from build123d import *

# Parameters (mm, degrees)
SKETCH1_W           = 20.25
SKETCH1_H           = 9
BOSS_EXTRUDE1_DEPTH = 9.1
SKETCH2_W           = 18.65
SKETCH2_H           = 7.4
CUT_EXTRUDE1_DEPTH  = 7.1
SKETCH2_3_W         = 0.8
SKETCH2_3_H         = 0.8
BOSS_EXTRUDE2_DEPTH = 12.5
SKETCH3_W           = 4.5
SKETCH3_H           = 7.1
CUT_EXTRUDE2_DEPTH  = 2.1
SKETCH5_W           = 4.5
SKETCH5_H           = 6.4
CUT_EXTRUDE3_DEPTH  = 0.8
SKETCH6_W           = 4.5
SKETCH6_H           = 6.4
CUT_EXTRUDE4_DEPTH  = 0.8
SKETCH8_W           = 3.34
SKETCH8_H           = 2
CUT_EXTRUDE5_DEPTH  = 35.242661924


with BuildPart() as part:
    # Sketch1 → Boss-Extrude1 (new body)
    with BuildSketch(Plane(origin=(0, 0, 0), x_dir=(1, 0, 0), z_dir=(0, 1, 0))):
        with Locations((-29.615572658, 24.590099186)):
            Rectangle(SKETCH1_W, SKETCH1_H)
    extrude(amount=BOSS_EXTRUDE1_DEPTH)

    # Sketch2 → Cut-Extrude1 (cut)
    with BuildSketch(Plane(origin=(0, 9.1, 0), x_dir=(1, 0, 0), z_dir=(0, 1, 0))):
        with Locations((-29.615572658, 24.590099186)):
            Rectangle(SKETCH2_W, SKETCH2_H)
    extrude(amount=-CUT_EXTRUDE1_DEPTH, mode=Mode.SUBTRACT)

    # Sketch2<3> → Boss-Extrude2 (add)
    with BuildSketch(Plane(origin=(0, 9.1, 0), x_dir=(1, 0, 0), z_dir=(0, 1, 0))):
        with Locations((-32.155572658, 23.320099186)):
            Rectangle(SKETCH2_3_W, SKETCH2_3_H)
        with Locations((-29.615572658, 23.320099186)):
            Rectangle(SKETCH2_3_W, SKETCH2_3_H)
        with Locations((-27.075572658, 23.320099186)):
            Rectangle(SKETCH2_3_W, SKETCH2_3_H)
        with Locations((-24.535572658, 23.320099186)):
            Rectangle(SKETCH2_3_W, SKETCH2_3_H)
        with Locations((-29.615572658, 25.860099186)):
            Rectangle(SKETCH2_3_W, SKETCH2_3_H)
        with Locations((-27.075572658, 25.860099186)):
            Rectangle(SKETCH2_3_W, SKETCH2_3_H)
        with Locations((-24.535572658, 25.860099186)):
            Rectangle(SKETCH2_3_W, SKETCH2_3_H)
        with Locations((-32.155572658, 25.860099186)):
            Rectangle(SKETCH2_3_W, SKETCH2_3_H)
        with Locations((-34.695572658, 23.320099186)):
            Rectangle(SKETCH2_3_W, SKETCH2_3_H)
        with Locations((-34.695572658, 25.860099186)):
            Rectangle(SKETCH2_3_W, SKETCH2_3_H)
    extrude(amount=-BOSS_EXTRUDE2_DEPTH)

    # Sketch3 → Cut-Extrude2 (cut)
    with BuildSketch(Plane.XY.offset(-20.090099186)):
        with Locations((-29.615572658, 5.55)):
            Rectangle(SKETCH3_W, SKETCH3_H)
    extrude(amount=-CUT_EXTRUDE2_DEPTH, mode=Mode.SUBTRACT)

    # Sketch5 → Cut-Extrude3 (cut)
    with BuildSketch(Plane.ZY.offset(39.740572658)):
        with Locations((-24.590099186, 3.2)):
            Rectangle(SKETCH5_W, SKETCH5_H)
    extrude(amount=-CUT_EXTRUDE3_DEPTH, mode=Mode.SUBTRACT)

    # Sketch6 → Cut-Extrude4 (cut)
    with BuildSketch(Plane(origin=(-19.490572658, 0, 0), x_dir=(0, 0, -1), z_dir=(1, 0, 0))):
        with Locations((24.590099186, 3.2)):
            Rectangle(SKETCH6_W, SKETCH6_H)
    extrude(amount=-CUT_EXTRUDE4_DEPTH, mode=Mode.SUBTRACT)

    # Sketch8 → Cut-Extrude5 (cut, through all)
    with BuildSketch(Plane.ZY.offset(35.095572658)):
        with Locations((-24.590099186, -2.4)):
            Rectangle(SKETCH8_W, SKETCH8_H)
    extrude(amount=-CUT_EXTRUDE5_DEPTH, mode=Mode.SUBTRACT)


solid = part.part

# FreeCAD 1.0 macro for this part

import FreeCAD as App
import Part
import Sketcher
Q = App.Units.Quantity

doc = App.newDocument("Part")
body = doc.addObject("PartDesign::Body", "Body")

sketch1 = body.newObject("Sketcher::SketchObject", "Sketch")
sketch1.AttachmentSupport = (doc.getObject("XZ_Plane"), [""])
sketch1.MapMode = "FlatFace"
sketch1.addGeometry(Part.LineSegment(App.Vector(-40, -29, 0), App.Vector(-40, -20, 0)), False)
sketch1.addGeometry(Part.LineSegment(App.Vector(-40, -20, 0), App.Vector(-19, -20, 0)), False)
sketch1.addGeometry(Part.LineSegment(App.Vector(-19, -20, 0), App.Vector(-19, -29, 0)), False)
sketch1.addGeometry(Part.LineSegment(App.Vector(-19, -29, 0), App.Vector(-40, -29, 0)), False)
sketch1.addConstraint(Sketcher.Constraint("Coincident", 0, 2, 1, 1))
sketch1.addConstraint(Sketcher.Constraint("Coincident", 1, 2, 2, 1))
sketch1.addConstraint(Sketcher.Constraint("Coincident", 2, 2, 3, 1))
sketch1.addConstraint(Sketcher.Constraint("Coincident", 3, 2, 0, 1))
sketch1.addConstraint(Sketcher.Constraint("Vertical", 0))
sketch1.addConstraint(Sketcher.Constraint("Horizontal", 1))
sketch1.addConstraint(Sketcher.Constraint("Vertical", 2))
sketch1.addConstraint(Sketcher.Constraint("Horizontal", 3))
sketch1.addConstraint(Sketcher.Constraint("DistanceY", 0, 1, 0, 2, Q("9 mm")))
sketch1.addConstraint(Sketcher.Constraint("DistanceX", 1, 1, 1, 2, Q("20.25 mm")))
sketch1.addConstraint(Sketcher.Constraint("DistanceY", 0, 2, -1, 1, Q("20.090099 mm")))
sketch1.addConstraint(Sketcher.Constraint("DistanceX", 0, 2, -1, 1, Q("39.740573 mm")))
pad1 = body.newObject("PartDesign::Pad", "Pad")
pad1.Profile = sketch1
pad1.Length = 9.1
pad1.Reversed = True

sketch2 = body.newObject("Sketcher::SketchObject", "Sketch001")
sketch2.AttachmentSupport = (doc.getObject("XZ_Plane"), [""])
sketch2.MapMode = "FlatFace"
sketch2.AttachmentOffset = App.Placement(App.Vector(0, 0, -9.1), App.Rotation())
sketch2.addGeometry(Part.LineSegment(App.Vector(-39, -28, 0), App.Vector(-39, -21, 0)), False)
sketch2.addGeometry(Part.LineSegment(App.Vector(-39, -21, 0), App.Vector(-20, -21, 0)), False)
sketch2.addGeometry(Part.LineSegment(App.Vector(-20, -21, 0), App.Vector(-20, -28, 0)), False)
sketch2.addGeometry(Part.LineSegment(App.Vector(-20, -28, 0), App.Vector(-39, -28, 0)), False)
sketch2.addConstraint(Sketcher.Constraint("Coincident", 0, 2, 1, 1))
sketch2.addConstraint(Sketcher.Constraint("Coincident", 1, 2, 2, 1))
sketch2.addConstraint(Sketcher.Constraint("Coincident", 2, 2, 3, 1))
sketch2.addConstraint(Sketcher.Constraint("Coincident", 3, 2, 0, 1))
sketch2.addConstraint(Sketcher.Constraint("Vertical", 0))
sketch2.addConstraint(Sketcher.Constraint("Horizontal", 1))
sketch2.addConstraint(Sketcher.Constraint("Vertical", 2))
sketch2.addConstraint(Sketcher.Constraint("Horizontal", 3))
sketch2.addConstraint(Sketcher.Constraint("DistanceY", 0, 1, 0, 2, Q("7.4 mm")))
sketch2.addConstraint(Sketcher.Constraint("DistanceX", 1, 1, 1, 2, Q("18.65 mm")))
sketch2.addConstraint(Sketcher.Constraint("DistanceY", 0, 2, -1, 1, Q("20.890099 mm")))
sketch2.addConstraint(Sketcher.Constraint("DistanceX", 0, 2, -1, 1, Q("38.940573 mm")))
pocket1 = body.newObject("PartDesign::Pocket", "Pocket")
pocket1.Profile = sketch2
pocket1.Length = 7.1
pocket1.Reversed = True

sketch3 = body.newObject("Sketcher::SketchObject", "Sketch002")
sketch3.AttachmentSupport = (doc.getObject("XZ_Plane"), [""])
sketch3.MapMode = "FlatFace"
sketch3.AttachmentOffset = App.Placement(App.Vector(0, 0, -9.1), App.Rotation())
sketch3.addGeometry(Part.LineSegment(App.Vector(-32.6, -23.7, 0), App.Vector(-32.6, -22.9, 0)), False)
sketch3.addGeometry(Part.LineSegment(App.Vector(-32.6, -22.9, 0), App.Vector(-31.8, -22.9, 0)), False)
sketch3.addGeometry(Part.LineSegment(App.Vector(-31.8, -22.9, 0), App.Vector(-31.8, -23.7, 0)), False)
sketch3.addGeometry(Part.LineSegment(App.Vector(-31.8, -23.7, 0), App.Vector(-32.6, -23.7, 0)), False)
sketch3.addGeometry(Part.LineSegment(App.Vector(-30, -23.7, 0), App.Vector(-30, -22.9, 0)), False)
sketch3.addGeometry(Part.LineSegment(App.Vector(-30, -22.9, 0), App.Vector(-29.2, -22.9, 0)), False)
sketch3.addGeometry(Part.LineSegment(App.Vector(-29.2, -22.9, 0), App.Vector(-29.2, -23.7, 0)), False)
sketch3.addGeometry(Part.LineSegment(App.Vector(-29.2, -23.7, 0), App.Vector(-30, -23.7, 0)), False)
sketch3.addGeometry(Part.LineSegment(App.Vector(-27.5, -23.7, 0), App.Vector(-27.5, -22.9, 0)), False)
sketch3.addGeometry(Part.LineSegment(App.Vector(-27.5, -22.9, 0), App.Vector(-26.7, -22.9, 0)), False)
sketch3.addGeometry(Part.LineSegment(App.Vector(-26.7, -22.9, 0), App.Vector(-26.7, -23.7, 0)), False)
sketch3.addGeometry(Part.LineSegment(App.Vector(-26.7, -23.7, 0), App.Vector(-27.5, -23.7, 0)), False)
sketch3.addGeometry(Part.LineSegment(App.Vector(-24.9, -23.7, 0), App.Vector(-24.9, -22.9, 0)), False)
sketch3.addGeometry(Part.LineSegment(App.Vector(-24.9, -22.9, 0), App.Vector(-24.1, -22.9, 0)), False)
sketch3.addGeometry(Part.LineSegment(App.Vector(-24.1, -22.9, 0), App.Vector(-24.1, -23.7, 0)), False)
sketch3.addGeometry(Part.LineSegment(App.Vector(-24.1, -23.7, 0), App.Vector(-24.9, -23.7, 0)), False)
sketch3.addGeometry(Part.LineSegment(App.Vector(-30, -26.3, 0), App.Vector(-30, -25.5, 0)), False)
sketch3.addGeometry(Part.LineSegment(App.Vector(-30, -25.5, 0), App.Vector(-29.2, -25.5, 0)), False)
sketch3.addGeometry(Part.LineSegment(App.Vector(-29.2, -25.5, 0), App.Vector(-29.2, -26.3, 0)), False)
sketch3.addGeometry(Part.LineSegment(App.Vector(-29.2, -26.3, 0), App.Vector(-30, -26.3, 0)), False)
sketch3.addGeometry(Part.LineSegment(App.Vector(-27.5, -26.3, 0), App.Vector(-27.5, -25.5, 0)), False)
sketch3.addGeometry(Part.LineSegment(App.Vector(-27.5, -25.5, 0), App.Vector(-26.7, -25.5, 0)), False)
sketch3.addGeometry(Part.LineSegment(App.Vector(-26.7, -25.5, 0), App.Vector(-26.7, -26.3, 0)), False)
sketch3.addGeometry(Part.LineSegment(App.Vector(-26.7, -26.3, 0), App.Vector(-27.5, -26.3, 0)), False)
sketch3.addGeometry(Part.LineSegment(App.Vector(-24.9, -26.3, 0), App.Vector(-24.9, -25.5, 0)), False)
sketch3.addGeometry(Part.LineSegment(App.Vector(-24.9, -25.5, 0), App.Vector(-24.1, -25.5, 0)), False)
sketch3.addGeometry(Part.LineSegment(App.Vector(-24.1, -25.5, 0), App.Vector(-24.1, -26.3, 0)), False)
sketch3.addGeometry(Part.LineSegment(App.Vector(-24.1, -26.3, 0), App.Vector(-24.9, -26.3, 0)), False)
sketch3.addGeometry(Part.LineSegment(App.Vector(-32.6, -26.3, 0), App.Vector(-32.6, -25.5, 0)), False)
sketch3.addGeometry(Part.LineSegment(App.Vector(-32.6, -25.5, 0), App.Vector(-31.8, -25.5, 0)), False)
sketch3.addGeometry(Part.LineSegment(App.Vector(-31.8, -25.5, 0), App.Vector(-31.8, -26.3, 0)), False)
sketch3.addGeometry(Part.LineSegment(App.Vector(-31.8, -26.3, 0), App.Vector(-32.6, -26.3, 0)), False)
sketch3.addGeometry(Part.LineSegment(App.Vector(-35.1, -23.7, 0), App.Vector(-35.1, -22.9, 0)), False)
sketch3.addGeometry(Part.LineSegment(App.Vector(-35.1, -22.9, 0), App.Vector(-34.3, -22.9, 0)), False)
sketch3.addGeometry(Part.LineSegment(App.Vector(-34.3, -22.9, 0), App.Vector(-34.3, -23.7, 0)), False)
sketch3.addGeometry(Part.LineSegment(App.Vector(-34.3, -23.7, 0), App.Vector(-35.1, -23.7, 0)), False)
sketch3.addGeometry(Part.LineSegment(App.Vector(-35.1, -26.3, 0), App.Vector(-35.1, -25.5, 0)), False)
sketch3.addGeometry(Part.LineSegment(App.Vector(-35.1, -25.5, 0), App.Vector(-34.3, -25.5, 0)), False)
sketch3.addGeometry(Part.LineSegment(App.Vector(-34.3, -25.5, 0), App.Vector(-34.3, -26.3, 0)), False)
sketch3.addGeometry(Part.LineSegment(App.Vector(-34.3, -26.3, 0), App.Vector(-35.1, -26.3, 0)), False)
sketch3.addConstraint(Sketcher.Constraint("Coincident", 0, 2, 1, 1))
sketch3.addConstraint(Sketcher.Constraint("Coincident", 1, 2, 2, 1))
sketch3.addConstraint(Sketcher.Constraint("Coincident", 2, 2, 3, 1))
sketch3.addConstraint(Sketcher.Constraint("Coincident", 3, 2, 0, 1))
sketch3.addConstraint(Sketcher.Constraint("Coincident", 4, 2, 5, 1))
sketch3.addConstraint(Sketcher.Constraint("Coincident", 5, 2, 6, 1))
sketch3.addConstraint(Sketcher.Constraint("Coincident", 6, 2, 7, 1))
sketch3.addConstraint(Sketcher.Constraint("Coincident", 7, 2, 4, 1))
sketch3.addConstraint(Sketcher.Constraint("Coincident", 8, 2, 9, 1))
sketch3.addConstraint(Sketcher.Constraint("Coincident", 9, 2, 10, 1))
sketch3.addConstraint(Sketcher.Constraint("Coincident", 10, 2, 11, 1))
sketch3.addConstraint(Sketcher.Constraint("Coincident", 11, 2, 8, 1))
sketch3.addConstraint(Sketcher.Constraint("Coincident", 12, 2, 13, 1))
sketch3.addConstraint(Sketcher.Constraint("Coincident", 13, 2, 14, 1))
sketch3.addConstraint(Sketcher.Constraint("Coincident", 14, 2, 15, 1))
sketch3.addConstraint(Sketcher.Constraint("Coincident", 15, 2, 12, 1))
sketch3.addConstraint(Sketcher.Constraint("Coincident", 16, 2, 17, 1))
sketch3.addConstraint(Sketcher.Constraint("Coincident", 17, 2, 18, 1))
sketch3.addConstraint(Sketcher.Constraint("Coincident", 18, 2, 19, 1))
sketch3.addConstraint(Sketcher.Constraint("Coincident", 19, 2, 16, 1))
sketch3.addConstraint(Sketcher.Constraint("Coincident", 20, 2, 21, 1))
sketch3.addConstraint(Sketcher.Constraint("Coincident", 21, 2, 22, 1))
sketch3.addConstraint(Sketcher.Constraint("Coincident", 22, 2, 23, 1))
sketch3.addConstraint(Sketcher.Constraint("Coincident", 23, 2, 20, 1))
sketch3.addConstraint(Sketcher.Constraint("Coincident", 24, 2, 25, 1))
sketch3.addConstraint(Sketcher.Constraint("Coincident", 25, 2, 26, 1))
sketch3.addConstraint(Sketcher.Constraint("Coincident", 26, 2, 27, 1))
sketch3.addConstraint(Sketcher.Constraint("Coincident", 27, 2, 24, 1))
sketch3.addConstraint(Sketcher.Constraint("Coincident", 28, 2, 29, 1))
sketch3.addConstraint(Sketcher.Constraint("Coincident", 29, 2, 30, 1))
sketch3.addConstraint(Sketcher.Constraint("Coincident", 30, 2, 31, 1))
sketch3.addConstraint(Sketcher.Constraint("Coincident", 31, 2, 28, 1))
sketch3.addConstraint(Sketcher.Constraint("Coincident", 32, 2, 33, 1))
sketch3.addConstraint(Sketcher.Constraint("Coincident", 33, 2, 34, 1))
sketch3.addConstraint(Sketcher.Constraint("Coincident", 34, 2, 35, 1))
sketch3.addConstraint(Sketcher.Constraint("Coincident", 35, 2, 32, 1))
sketch3.addConstraint(Sketcher.Constraint("Coincident", 36, 2, 37, 1))
sketch3.addConstraint(Sketcher.Constraint("Coincident", 37, 2, 38, 1))
sketch3.addConstraint(Sketcher.Constraint("Coincident", 38, 2, 39, 1))
sketch3.addConstraint(Sketcher.Constraint("Coincident", 39, 2, 36, 1))
sketch3.addConstraint(Sketcher.Constraint("Vertical", 0))
sketch3.addConstraint(Sketcher.Constraint("Horizontal", 1))
sketch3.addConstraint(Sketcher.Constraint("Vertical", 2))
sketch3.addConstraint(Sketcher.Constraint("Horizontal", 3))
sketch3.addConstraint(Sketcher.Constraint("Vertical", 4))
sketch3.addConstraint(Sketcher.Constraint("Horizontal", 5))
sketch3.addConstraint(Sketcher.Constraint("Vertical", 6))
sketch3.addConstraint(Sketcher.Constraint("Horizontal", 7))
sketch3.addConstraint(Sketcher.Constraint("Vertical", 8))
sketch3.addConstraint(Sketcher.Constraint("Horizontal", 9))
sketch3.addConstraint(Sketcher.Constraint("Vertical", 10))
sketch3.addConstraint(Sketcher.Constraint("Horizontal", 11))
sketch3.addConstraint(Sketcher.Constraint("Vertical", 12))
sketch3.addConstraint(Sketcher.Constraint("Horizontal", 13))
sketch3.addConstraint(Sketcher.Constraint("Vertical", 14))
sketch3.addConstraint(Sketcher.Constraint("Horizontal", 15))
sketch3.addConstraint(Sketcher.Constraint("Vertical", 16))
sketch3.addConstraint(Sketcher.Constraint("Horizontal", 17))
sketch3.addConstraint(Sketcher.Constraint("Vertical", 18))
sketch3.addConstraint(Sketcher.Constraint("Horizontal", 19))
sketch3.addConstraint(Sketcher.Constraint("Vertical", 20))
sketch3.addConstraint(Sketcher.Constraint("Horizontal", 21))
sketch3.addConstraint(Sketcher.Constraint("Vertical", 22))
sketch3.addConstraint(Sketcher.Constraint("Horizontal", 23))
sketch3.addConstraint(Sketcher.Constraint("Vertical", 24))
sketch3.addConstraint(Sketcher.Constraint("Horizontal", 25))
sketch3.addConstraint(Sketcher.Constraint("Vertical", 26))
sketch3.addConstraint(Sketcher.Constraint("Horizontal", 27))
sketch3.addConstraint(Sketcher.Constraint("Vertical", 28))
sketch3.addConstraint(Sketcher.Constraint("Horizontal", 29))
sketch3.addConstraint(Sketcher.Constraint("Vertical", 30))
sketch3.addConstraint(Sketcher.Constraint("Horizontal", 31))
sketch3.addConstraint(Sketcher.Constraint("Vertical", 32))
sketch3.addConstraint(Sketcher.Constraint("Horizontal", 33))
sketch3.addConstraint(Sketcher.Constraint("Vertical", 34))
sketch3.addConstraint(Sketcher.Constraint("Horizontal", 35))
sketch3.addConstraint(Sketcher.Constraint("Vertical", 36))
sketch3.addConstraint(Sketcher.Constraint("Horizontal", 37))
sketch3.addConstraint(Sketcher.Constraint("Vertical", 38))
sketch3.addConstraint(Sketcher.Constraint("Horizontal", 39))
sketch3.addConstraint(Sketcher.Constraint("Horizontal", 1, 2, 4, 2))
sketch3.addConstraint(Sketcher.Constraint("Horizontal", 3, 2, 6, 2))
sketch3.addConstraint(Sketcher.Constraint("Horizontal", 5, 2, 8, 2))
sketch3.addConstraint(Sketcher.Constraint("Horizontal", 7, 2, 10, 2))
sketch3.addConstraint(Sketcher.Constraint("Horizontal", 9, 2, 12, 2))
sketch3.addConstraint(Sketcher.Constraint("Horizontal", 11, 2, 14, 2))
sketch3.addConstraint(Sketcher.Constraint("Horizontal", 17, 2, 20, 2))
sketch3.addConstraint(Sketcher.Constraint("Horizontal", 19, 2, 22, 2))
sketch3.addConstraint(Sketcher.Constraint("Horizontal", 21, 2, 24, 2))
sketch3.addConstraint(Sketcher.Constraint("Horizontal", 23, 2, 26, 2))
sketch3.addConstraint(Sketcher.Constraint("Horizontal", 25, 2, 28, 2))
sketch3.addConstraint(Sketcher.Constraint("Horizontal", 27, 2, 30, 2))
sketch3.addConstraint(Sketcher.Constraint("Horizontal", 13, 2, 32, 2))
sketch3.addConstraint(Sketcher.Constraint("Horizontal", 15, 2, 34, 2))
sketch3.addConstraint(Sketcher.Constraint("Horizontal", 29, 2, 36, 2))
sketch3.addConstraint(Sketcher.Constraint("Horizontal", 31, 2, 38, 2))
sketch3.addConstraint(Sketcher.Constraint("Vertical", 7, 2, 16, 2))
sketch3.addConstraint(Sketcher.Constraint("Vertical", 6, 2, 17, 2))
sketch3.addConstraint(Sketcher.Constraint("Vertical", 11, 2, 20, 2))
sketch3.addConstraint(Sketcher.Constraint("Vertical", 10, 2, 21, 2))
sketch3.addConstraint(Sketcher.Constraint("Vertical", 15, 2, 24, 2))
sketch3.addConstraint(Sketcher.Constraint("Vertical", 14, 2, 25, 2))
sketch3.addConstraint(Sketcher.Constraint("Vertical", 3, 2, 28, 2))
sketch3.addConstraint(Sketcher.Constraint("Vertical", 2, 2, 29, 2))
sketch3.addConstraint(Sketcher.Constraint("Vertical", 35, 2, 36, 2))
sketch3.addConstraint(Sketcher.Constraint("Vertical", 34, 2, 37, 2))
sketch3.addConstraint(Sketcher.Constraint("Equal", 3, 5))
sketch3.addConstraint(Sketcher.Constraint("Equal", 7, 9))
sketch3.addConstraint(Sketcher.Constraint("Equal", 11, 13))
sketch3.addConstraint(Sketcher.Constraint("Equal", 31, 33))
sketch3.addConstraint(Sketcher.Constraint("Equal", 39, 0))
sketch3.addConstraint(Sketcher.Constraint("Equal", 14, 16))
sketch3.addConstraint(Sketcher.Constraint("DistanceX", 1, 1, 1, 2, Q("0.8 mm")))
sketch3.addConstraint(Sketcher.Constraint("DistanceX", 1, 2, 4, 2, Q("1.74 mm")))
sketch3.addConstraint(Sketcher.Constraint("DistanceX", 5, 2, 8, 2, Q("1.74 mm")))
sketch3.addConstraint(Sketcher.Constraint("DistanceX", 9, 2, 12, 2, Q("1.74 mm")))
sketch3.addConstraint(Sketcher.Constraint("DistanceY", 16, 2, 7, 2, Q("1.74 mm")))
sketch3.addConstraint(Sketcher.Constraint("DistanceX", 32, 2, 0, 2, Q("2.54 mm")))
sketch3.addConstraint(Sketcher.Constraint("DistanceY", 0, 2, -1, 1, Q("22.920099 mm")))
sketch3.addConstraint(Sketcher.Constraint("DistanceX", 0, 2, -1, 1, Q("32.555573 mm")))
pad2 = body.newObject("PartDesign::Pad", "Pad001")
pad2.Profile = sketch3
pad2.Length = 12.5

sketch4 = body.newObject("Sketcher::SketchObject", "Sketch003")
sketch4.AttachmentSupport = (doc.getObject("XY_Plane"), [""])
sketch4.MapMode = "FlatFace"
sketch4.AttachmentOffset = App.Placement(App.Vector(0, 0, -20.090099), App.Rotation())
sketch4.addGeometry(Part.LineSegment(App.Vector(-31.9, 9.1, 0), App.Vector(-31.9, 2, 0)), False)
sketch4.addGeometry(Part.LineSegment(App.Vector(-31.9, 2, 0), App.Vector(-27.4, 2, 0)), False)
sketch4.addGeometry(Part.LineSegment(App.Vector(-27.4, 2, 0), App.Vector(-27.4, 9.1, 0)), False)
sketch4.addGeometry(Part.LineSegment(App.Vector(-27.4, 9.1, 0), App.Vector(-31.9, 9.1, 0)), False)
sketch4.addConstraint(Sketcher.Constraint("Coincident", 0, 2, 1, 1))
sketch4.addConstraint(Sketcher.Constraint("Coincident", 1, 2, 2, 1))
sketch4.addConstraint(Sketcher.Constraint("Coincident", 2, 2, 3, 1))
sketch4.addConstraint(Sketcher.Constraint("Coincident", 3, 2, 0, 1))
sketch4.addConstraint(Sketcher.Constraint("Vertical", 0))
sketch4.addConstraint(Sketcher.Constraint("Horizontal", 1))
sketch4.addConstraint(Sketcher.Constraint("Vertical", 2))
sketch4.addConstraint(Sketcher.Constraint("Horizontal", 3))
sketch4.addConstraint(Sketcher.Constraint("DistanceX", 1, 1, 1, 2, Q("4.5 mm")))
sketch4.addConstraint(Sketcher.Constraint("DistanceY", 0, 2, 0, 1, Q("7.1 mm")))
sketch4.addConstraint(Sketcher.Constraint("DistanceY", -1, 1, 0, 2, Q("2 mm")))
sketch4.addConstraint(Sketcher.Constraint("DistanceX", 0, 2, -1, 1, Q("31.865573 mm")))
pocket2 = body.newObject("PartDesign::Pocket", "Pocket001")
pocket2.Profile = sketch4
pocket2.Length = 2.1

sketch5 = body.newObject("Sketcher::SketchObject", "Sketch004")
sketch5.AttachmentSupport = (doc.getObject("YZ_Plane"), [""])
sketch5.MapMode = "FlatFace"
sketch5.AttachmentOffset = App.Placement(App.Vector(0, 0, -39.740573), App.Rotation())
sketch5.addGeometry(Part.LineSegment(App.Vector(6.4, -26.8, 0), App.Vector(0, -26.8, 0)), False)
sketch5.addGeometry(Part.LineSegment(App.Vector(0, -26.8, 0), App.Vector(0, -22.3, 0)), False)
sketch5.addGeometry(Part.LineSegment(App.Vector(0, -22.3, 0), App.Vector(6.4, -22.3, 0)), False)
sketch5.addGeometry(Part.LineSegment(App.Vector(6.4, -22.3, 0), App.Vector(6.4, -26.8, 0)), False)
sketch5.addConstraint(Sketcher.Constraint("Coincident", 0, 2, 1, 1))
sketch5.addConstraint(Sketcher.Constraint("Coincident", 1, 2, 2, 1))
sketch5.addConstraint(Sketcher.Constraint("Coincident", 2, 2, 3, 1))
sketch5.addConstraint(Sketcher.Constraint("Coincident", 3, 2, 0, 1))
sketch5.addConstraint(Sketcher.Constraint("Horizontal", 0))
sketch5.addConstraint(Sketcher.Constraint("Vertical", 1))
sketch5.addConstraint(Sketcher.Constraint("Horizontal", 2))
sketch5.addConstraint(Sketcher.Constraint("Vertical", 3))
sketch5.addConstraint(Sketcher.Constraint("PointOnObject", 0, 2, -2))
sketch5.addConstraint(Sketcher.Constraint("DistanceX", 0, 2, 0, 1, Q("6.4 mm")))
sketch5.addConstraint(Sketcher.Constraint("DistanceY", 1, 1, 1, 2, Q("4.5 mm")))
sketch5.addConstraint(Sketcher.Constraint("DistanceY", 0, 2, -1, 1, Q("26.840099 mm")))
pocket3 = body.newObject("PartDesign::Pocket", "Pocket002")
pocket3.Profile = sketch5
pocket3.Length = 0.8
pocket3.Reversed = True

sketch6 = body.newObject("Sketcher::SketchObject", "Sketch005")
sketch6.AttachmentSupport = (doc.getObject("YZ_Plane"), [""])
sketch6.MapMode = "FlatFace"
sketch6.AttachmentOffset = App.Placement(App.Vector(0, 0, -19.490573), App.Rotation())
sketch6.addGeometry(Part.LineSegment(App.Vector(6.4, -22.3, 0), App.Vector(0, -22.3, 0)), False)
sketch6.addGeometry(Part.LineSegment(App.Vector(0, -22.3, 0), App.Vector(0, -26.8, 0)), False)
sketch6.addGeometry(Part.LineSegment(App.Vector(0, -26.8, 0), App.Vector(6.4, -26.8, 0)), False)
sketch6.addGeometry(Part.LineSegment(App.Vector(6.4, -26.8, 0), App.Vector(6.4, -22.3, 0)), False)
sketch6.addConstraint(Sketcher.Constraint("Coincident", 0, 2, 1, 1))
sketch6.addConstraint(Sketcher.Constraint("Coincident", 1, 2, 2, 1))
sketch6.addConstraint(Sketcher.Constraint("Coincident", 2, 2, 3, 1))
sketch6.addConstraint(Sketcher.Constraint("Coincident", 3, 2, 0, 1))
sketch6.addConstraint(Sketcher.Constraint("Horizontal", 0))
sketch6.addConstraint(Sketcher.Constraint("Vertical", 1))
sketch6.addConstraint(Sketcher.Constraint("Horizontal", 2))
sketch6.addConstraint(Sketcher.Constraint("Vertical", 3))
sketch6.addConstraint(Sketcher.Constraint("PointOnObject", 0, 2, -2))
sketch6.addConstraint(Sketcher.Constraint("DistanceX", 0, 2, 0, 1, Q("6.4 mm")))
sketch6.addConstraint(Sketcher.Constraint("DistanceY", 1, 2, 1, 1, Q("4.5 mm")))
sketch6.addConstraint(Sketcher.Constraint("DistanceY", 0, 2, -1, 1, Q("22.340099 mm")))
pocket4 = body.newObject("PartDesign::Pocket", "Pocket003")
pocket4.Profile = sketch6
pocket4.Length = 0.8

sketch7 = body.newObject("Sketcher::SketchObject", "Sketch006")
sketch7.AttachmentSupport = (doc.getObject("YZ_Plane"), [""])
sketch7.MapMode = "FlatFace"
sketch7.AttachmentOffset = App.Placement(App.Vector(0, 0, -35.095573), App.Rotation())
sketch7.addGeometry(Part.LineSegment(App.Vector(-1.4, -26.3, 0), App.Vector(-3.4, -26.3, 0)), False)
sketch7.addGeometry(Part.LineSegment(App.Vector(-3.4, -26.3, 0), App.Vector(-3.4, -22.9, 0)), False)
sketch7.addGeometry(Part.LineSegment(App.Vector(-3.4, -22.9, 0), App.Vector(-1.4, -22.9, 0)), False)
sketch7.addGeometry(Part.LineSegment(App.Vector(-1.4, -22.9, 0), App.Vector(-1.4, -26.3, 0)), False)
sketch7.addConstraint(Sketcher.Constraint("Coincident", 0, 2, 1, 1))
sketch7.addConstraint(Sketcher.Constraint("Coincident", 1, 2, 2, 1))
sketch7.addConstraint(Sketcher.Constraint("Coincident", 2, 2, 3, 1))
sketch7.addConstraint(Sketcher.Constraint("Coincident", 3, 2, 0, 1))
sketch7.addConstraint(Sketcher.Constraint("Horizontal", 0))
sketch7.addConstraint(Sketcher.Constraint("Vertical", 1))
sketch7.addConstraint(Sketcher.Constraint("Horizontal", 2))
sketch7.addConstraint(Sketcher.Constraint("Vertical", 3))
sketch7.addConstraint(Sketcher.Constraint("DistanceX", 0, 2, 0, 1, Q("2 mm")))
sketch7.addConstraint(Sketcher.Constraint("DistanceY", 1, 1, 1, 2, Q("3.34 mm")))
sketch7.addConstraint(Sketcher.Constraint("DistanceX", 0, 2, -1, 1, Q("3.4 mm")))
sketch7.addConstraint(Sketcher.Constraint("DistanceY", 0, 2, -1, 1, Q("26.260099 mm")))
pocket5 = body.newObject("PartDesign::Pocket", "Pocket004")
pocket5.Profile = sketch7
pocket5.Type = "ThroughAll"
pocket5.Reversed = True

doc.recompute()
